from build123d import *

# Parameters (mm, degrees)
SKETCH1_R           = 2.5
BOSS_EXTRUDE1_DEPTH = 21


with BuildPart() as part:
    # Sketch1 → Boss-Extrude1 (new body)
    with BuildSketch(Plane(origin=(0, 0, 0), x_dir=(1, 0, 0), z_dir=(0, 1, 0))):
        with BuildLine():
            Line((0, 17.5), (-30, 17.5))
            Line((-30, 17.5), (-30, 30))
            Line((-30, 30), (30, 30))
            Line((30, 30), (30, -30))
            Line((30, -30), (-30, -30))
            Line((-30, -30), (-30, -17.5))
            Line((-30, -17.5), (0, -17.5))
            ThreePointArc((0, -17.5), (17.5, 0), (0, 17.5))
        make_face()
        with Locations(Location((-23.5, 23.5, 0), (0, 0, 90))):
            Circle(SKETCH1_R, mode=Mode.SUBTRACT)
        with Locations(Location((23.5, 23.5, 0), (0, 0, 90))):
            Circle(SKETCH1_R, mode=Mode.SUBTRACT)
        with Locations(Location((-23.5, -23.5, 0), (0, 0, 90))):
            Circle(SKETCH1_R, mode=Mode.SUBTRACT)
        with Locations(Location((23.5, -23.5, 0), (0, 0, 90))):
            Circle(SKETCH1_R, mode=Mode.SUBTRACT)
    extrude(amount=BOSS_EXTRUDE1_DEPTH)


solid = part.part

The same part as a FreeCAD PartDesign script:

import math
import FreeCAD as App
import Part
import Sketcher

V = App.Vector
Q = App.Units.Quantity

doc = App.newDocument("Part")
params = doc.addObject("Spreadsheet::Sheet", "Params")
for row, (alias, value) in enumerate([
    ("sketch1_diameter", "5 mm"),
    ("sketch1_radius", "17.5 mm"),
    ("sketch1_width", "30 mm"),
    ("pad1_length", "21 mm"),
], start=1):
    params.set(f"A{row}", alias)
    params.set(f"B{row}", "=" + value)
    params.setAlias(f"B{row}", alias)

body = doc.addObject("PartDesign::Body", "Body")

# Sketch on XZ plane
sketch1 = body.newObject("Sketcher::SketchObject", "Sketch")
sketch1.AttachmentSupport = (doc.getObject("XZ_Plane"), [""])
sketch1.MapMode = "FlatFace"
sketch1.addGeometry([
    Part.LineSegment(V(-30, -17.5, 0), V(0, -17.5, 0)),  # 0
    Part.ArcOfCircle(Part.Circle(V(0, 0, 0), V(0, 0, 1), 17.5), math.radians(-90), math.radians(90)),  # 1
    Part.LineSegment(V(0, 17.5, 0), V(-30, 17.5, 0)),  # 2
    Part.LineSegment(V(-30, 17.5, 0), V(-30, 30, 0)),  # 3
    Part.LineSegment(V(-30, 30, 0), V(30, 30, 0)),  # 4
    Part.LineSegment(V(30, 30, 0), V(30, -30, 0)),  # 5
    Part.LineSegment(V(30, -30, 0), V(-30, -30, 0)),  # 6
    Part.LineSegment(V(-30, -30, 0), V(-30, -17.5, 0)),  # 7
    Part.Circle(V(23.5, 23.5, 0), V(0, 0, 1), 2.5),  # 8
    Part.Circle(V(-23.5, 23.5, 0), V(0, 0, 1), 2.5),  # 9
    Part.Circle(V(23.5, -23.5, 0), V(0, 0, 1), 2.5),  # 10
    Part.Circle(V(-23.5, -23.5, 0), V(0, 0, 1), 2.5),  # 11
], False)
sketch1.addConstraint([
    Sketcher.Constraint("Tangent", 0, 2, 1, 1),
    Sketcher.Constraint("Tangent", 1, 2, 2, 1),
    Sketcher.Constraint("Coincident", 2, 2, 3, 1),
    Sketcher.Constraint("Coincident", 3, 2, 4, 1),
    Sketcher.Constraint("Coincident", 4, 2, 5, 1),
    Sketcher.Constraint("Coincident", 5, 2, 6, 1),
    Sketcher.Constraint("Coincident", 6, 2, 7, 1),
    Sketcher.Constraint("Coincident", 7, 2, 0, 1),
    Sketcher.Constraint("Horizontal", 0),
    Sketcher.Constraint("Horizontal", 2),
    Sketcher.Constraint("Vertical", 3),
    Sketcher.Constraint("Horizontal", 4),
    Sketcher.Constraint("Vertical", 5),
    Sketcher.Constraint("Horizontal", 6),
    Sketcher.Constraint("Vertical", 7),
    Sketcher.Constraint("Coincident", 1, 3, -1, 1),
    Sketcher.Constraint("Equal", 8, 9),
    Sketcher.Constraint("Equal", 9, 10),
    Sketcher.Constraint("Equal", 10, 11),
    Sketcher.Constraint("Symmetric", 9, 3, 10, 3, -1, 1),
    Sketcher.Constraint("Symmetric", 8, 3, 11, 3, -1, 1),
    Sketcher.Constraint("Symmetric", 3, 2, 5, 2, -1, 1),
    Sketcher.Constraint("Symmetric", 8, 3, 9, 3, -2),
    Sketcher.Constraint("Vertical", 3, 2, 6, 2),
    Sketcher.Constraint("Equal", 6, 5),
    Sketcher.Constraint("Diameter", 8, Q("5 mm")),
    Sketcher.Constraint("Radius", 1, Q("17.5 mm")),
    Sketcher.Constraint("DistanceX", 0, 1, 0, 2, Q("30 mm")),
    Sketcher.Constraint("DistanceX", 9, 3, 8, 3, Q("47 mm")),
    Sketcher.Constraint("DistanceY", 10, 3, 8, 3, Q("47 mm")),
])
sketch1.setExpression("Constraints[25]", "Params.sketch1_diameter")
sketch1.setExpression("Constraints[26]", "Params.sketch1_radius")
sketch1.setExpression("Constraints[27]", "Params.sketch1_width")
pad1 = body.newObject("PartDesign::Pad", "Pad")
pad1.Profile = sketch1
pad1.setExpression("Length", "Params.pad1_length")
pad1.Reversed = True

doc.recompute()
